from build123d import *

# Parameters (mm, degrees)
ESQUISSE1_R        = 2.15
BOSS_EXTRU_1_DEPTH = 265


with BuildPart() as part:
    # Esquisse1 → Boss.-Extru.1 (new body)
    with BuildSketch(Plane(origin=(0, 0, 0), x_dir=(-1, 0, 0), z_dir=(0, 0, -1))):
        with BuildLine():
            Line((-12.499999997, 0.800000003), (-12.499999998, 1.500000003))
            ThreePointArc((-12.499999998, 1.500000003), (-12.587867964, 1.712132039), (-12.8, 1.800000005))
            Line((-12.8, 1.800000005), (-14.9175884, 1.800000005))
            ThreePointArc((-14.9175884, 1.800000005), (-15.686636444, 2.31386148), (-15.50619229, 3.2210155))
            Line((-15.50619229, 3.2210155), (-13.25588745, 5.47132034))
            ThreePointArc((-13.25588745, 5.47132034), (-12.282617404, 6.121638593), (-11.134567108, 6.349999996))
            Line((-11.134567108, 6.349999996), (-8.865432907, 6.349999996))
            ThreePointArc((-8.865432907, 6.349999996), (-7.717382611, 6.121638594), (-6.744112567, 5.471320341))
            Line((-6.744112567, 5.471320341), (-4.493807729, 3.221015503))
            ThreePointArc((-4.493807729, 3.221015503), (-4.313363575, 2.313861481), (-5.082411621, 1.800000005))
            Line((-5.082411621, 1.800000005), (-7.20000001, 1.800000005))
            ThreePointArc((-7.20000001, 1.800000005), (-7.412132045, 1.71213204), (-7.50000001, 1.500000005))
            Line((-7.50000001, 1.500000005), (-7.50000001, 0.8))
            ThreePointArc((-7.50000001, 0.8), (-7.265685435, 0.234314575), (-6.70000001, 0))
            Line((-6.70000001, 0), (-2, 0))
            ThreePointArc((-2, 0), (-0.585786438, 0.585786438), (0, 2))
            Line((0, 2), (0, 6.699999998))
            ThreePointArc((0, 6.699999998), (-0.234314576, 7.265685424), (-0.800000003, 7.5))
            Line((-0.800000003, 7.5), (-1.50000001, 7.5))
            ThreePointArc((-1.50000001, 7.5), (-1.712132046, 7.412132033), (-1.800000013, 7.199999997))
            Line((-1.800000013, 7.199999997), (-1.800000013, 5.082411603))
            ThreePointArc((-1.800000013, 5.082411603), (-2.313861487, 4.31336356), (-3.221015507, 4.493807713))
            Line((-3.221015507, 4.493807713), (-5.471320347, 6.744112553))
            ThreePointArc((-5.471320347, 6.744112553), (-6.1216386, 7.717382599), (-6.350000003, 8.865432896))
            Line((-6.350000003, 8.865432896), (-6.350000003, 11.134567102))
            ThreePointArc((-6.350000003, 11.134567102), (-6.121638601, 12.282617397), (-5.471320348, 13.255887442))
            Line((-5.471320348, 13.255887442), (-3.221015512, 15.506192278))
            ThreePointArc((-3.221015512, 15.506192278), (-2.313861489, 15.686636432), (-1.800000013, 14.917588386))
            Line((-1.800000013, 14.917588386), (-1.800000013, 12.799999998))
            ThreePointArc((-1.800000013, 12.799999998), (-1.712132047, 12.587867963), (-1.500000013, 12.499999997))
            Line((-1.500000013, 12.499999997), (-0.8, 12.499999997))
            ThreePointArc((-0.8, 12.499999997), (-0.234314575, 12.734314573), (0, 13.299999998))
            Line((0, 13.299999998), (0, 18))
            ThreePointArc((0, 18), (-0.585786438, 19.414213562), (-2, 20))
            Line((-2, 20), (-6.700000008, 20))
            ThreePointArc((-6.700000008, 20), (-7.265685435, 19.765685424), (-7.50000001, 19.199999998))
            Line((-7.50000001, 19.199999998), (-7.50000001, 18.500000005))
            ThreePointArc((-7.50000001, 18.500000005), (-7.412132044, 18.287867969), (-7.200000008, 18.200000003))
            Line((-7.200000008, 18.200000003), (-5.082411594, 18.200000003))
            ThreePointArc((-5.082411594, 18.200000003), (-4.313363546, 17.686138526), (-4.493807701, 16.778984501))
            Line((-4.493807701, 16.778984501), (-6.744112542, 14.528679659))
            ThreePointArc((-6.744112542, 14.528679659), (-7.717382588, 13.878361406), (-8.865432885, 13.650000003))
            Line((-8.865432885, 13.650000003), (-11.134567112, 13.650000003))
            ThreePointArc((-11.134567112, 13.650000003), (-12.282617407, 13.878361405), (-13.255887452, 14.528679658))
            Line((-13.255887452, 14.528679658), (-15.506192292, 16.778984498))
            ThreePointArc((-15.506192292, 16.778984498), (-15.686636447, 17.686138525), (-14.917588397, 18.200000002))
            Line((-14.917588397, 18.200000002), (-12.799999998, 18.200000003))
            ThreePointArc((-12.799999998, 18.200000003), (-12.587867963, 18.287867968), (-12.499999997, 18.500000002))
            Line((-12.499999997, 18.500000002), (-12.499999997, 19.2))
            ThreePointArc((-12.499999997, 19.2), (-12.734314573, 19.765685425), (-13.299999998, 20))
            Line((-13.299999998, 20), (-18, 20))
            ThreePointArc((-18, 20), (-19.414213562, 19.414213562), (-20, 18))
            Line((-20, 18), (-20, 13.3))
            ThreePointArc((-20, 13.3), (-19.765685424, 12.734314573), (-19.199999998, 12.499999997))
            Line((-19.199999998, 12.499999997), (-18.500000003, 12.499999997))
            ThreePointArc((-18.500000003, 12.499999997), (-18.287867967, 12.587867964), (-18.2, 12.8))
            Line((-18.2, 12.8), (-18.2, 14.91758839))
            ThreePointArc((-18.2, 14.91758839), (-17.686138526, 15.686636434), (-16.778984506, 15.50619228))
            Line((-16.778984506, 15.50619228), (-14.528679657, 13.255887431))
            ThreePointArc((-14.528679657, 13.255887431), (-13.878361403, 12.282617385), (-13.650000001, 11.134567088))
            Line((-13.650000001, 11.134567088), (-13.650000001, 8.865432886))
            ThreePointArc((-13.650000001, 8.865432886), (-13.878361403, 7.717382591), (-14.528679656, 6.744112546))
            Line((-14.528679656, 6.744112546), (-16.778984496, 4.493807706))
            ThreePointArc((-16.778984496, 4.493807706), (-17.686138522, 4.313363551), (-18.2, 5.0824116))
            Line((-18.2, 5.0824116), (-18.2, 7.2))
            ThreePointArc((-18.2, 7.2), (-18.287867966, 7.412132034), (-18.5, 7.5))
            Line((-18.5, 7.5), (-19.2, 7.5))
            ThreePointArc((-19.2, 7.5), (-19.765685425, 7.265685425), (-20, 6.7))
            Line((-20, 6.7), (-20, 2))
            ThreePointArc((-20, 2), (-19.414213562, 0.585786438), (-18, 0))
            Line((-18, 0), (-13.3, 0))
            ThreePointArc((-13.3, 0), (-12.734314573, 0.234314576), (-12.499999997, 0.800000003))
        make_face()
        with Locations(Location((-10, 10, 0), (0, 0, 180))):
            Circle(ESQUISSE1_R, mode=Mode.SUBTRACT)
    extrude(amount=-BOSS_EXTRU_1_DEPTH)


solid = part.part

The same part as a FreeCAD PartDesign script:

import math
import FreeCAD as App
import Part
import Sketcher
from FreeCAD import Vector

doc = App.newDocument("Part")
body = doc.addObject("PartDesign::Body", "Body")

# Sketch on XY plane
sketch1 = body.newObject("Sketcher::SketchObject", "Sketch")
sketch1.AttachmentSupport = (doc.getObject("XY_Plane"), [""])
sketch1.MapMode = "FlatFace"
sketch1.addGeometry(Part.LineSegment(Vector(12.5, 0.8, 0), Vector(12.5, 1.5, 0)), False)
sketch1.addGeometry(Part.ArcOfCircle(Part.Circle(Vector(12.8, 1.5, 0), Vector(0, 0, 1), 0.3), math.radians(90), math.radians(180)), False)
sketch1.addGeometry(Part.LineSegment(Vector(12.8, 1.8, 0), Vector(14.92, 1.8, 0)), False)
sketch1.addGeometry(Part.ArcOfCircle(Part.Circle(Vector(14.92, 2.63, 0), Vector(0, 0, 1), 0.83), math.radians(-90), math.radians(45)), False)
sketch1.addGeometry(Part.LineSegment(Vector(15.51, 3.22, 0), Vector(13.26, 5.47, 0)), False)
sketch1.addGeometry(Part.ArcOfCircle(Part.Circle(Vector(11.13, 3.35, 0), Vector(0, 0, 1), 3), math.radians(45), math.radians(90)), False)
sketch1.addGeometry(Part.LineSegment(Vector(11.13, 6.35, 0), Vector(8.87, 6.35, 0)), False)
sketch1.addGeometry(Part.ArcOfCircle(Part.Circle(Vector(8.87, 3.35, 0), Vector(0, 0, 1), 3), math.radians(90), math.radians(135)), False)
sketch1.addGeometry(Part.LineSegment(Vector(6.74, 5.47, 0), Vector(4.49, 3.22, 0)), False)
sketch1.addGeometry(Part.ArcOfCircle(Part.Circle(Vector(5.08, 2.63, 0), Vector(0, 0, 1), 0.83), math.radians(135), math.radians(270)), False)
sketch1.addGeometry(Part.LineSegment(Vector(5.08, 1.8, 0), Vector(7.2, 1.8, 0)), False)
sketch1.addGeometry(Part.ArcOfCircle(Part.Circle(Vector(7.2, 1.5, 0), Vector(0, 0, 1), 0.3), math.radians(0), math.radians(90)), False)
sketch1.addGeometry(Part.LineSegment(Vector(7.5, 1.5, 0), Vector(7.5, 0.8, 0)), False)
sketch1.addGeometry(Part.ArcOfCircle(Part.Circle(Vector(6.7, 0.8, 0), Vector(0, 0, 1), 0.8), math.radians(-90), math.radians(0)), False)
sketch1.addGeometry(Part.LineSegment(Vector(6.7, 0, 0), Vector(2, 0, 0)), False)
sketch1.addGeometry(Part.ArcOfCircle(Part.Circle(Vector(2, 2, 0), Vector(0, 0, 1), 2), math.radians(-180), math.radians(-90)), False)
sketch1.addGeometry(Part.LineSegment(Vector(0, 2, 0), Vector(0, 6.7, 0)), False)
sketch1.addGeometry(Part.ArcOfCircle(Part.Circle(Vector(0.8, 6.7, 0), Vector(0, 0, 1), 0.8), math.radians(90), math.radians(180)), False)
sketch1.addGeometry(Part.LineSegment(Vector(0.8, 7.5, 0), Vector(1.5, 7.5, 0)), False)
sketch1.addGeometry(Part.ArcOfCircle(Part.Circle(Vector(1.5, 7.2, 0), Vector(0, 0, 1), 0.3), math.radians(0), math.radians(90)), False)
sketch1.addGeometry(Part.LineSegment(Vector(1.8, 7.2, 0), Vector(1.8, 5.08, 0)), False)
sketch1.addGeometry(Part.ArcOfCircle(Part.Circle(Vector(2.63, 5.08, 0), Vector(0, 0, 1), 0.83), math.radians(-180), math.radians(-45)), False)
sketch1.addGeometry(Part.LineSegment(Vector(3.22, 4.49, 0), Vector(5.47, 6.74, 0)), False)
sketch1.addGeometry(Part.ArcOfCircle(Part.Circle(Vector(3.35, 8.87, 0), Vector(0, 0, 1), 3), math.radians(-45), math.radians(0)), False)
sketch1.addGeometry(Part.LineSegment(Vector(6.35, 8.87, 0), Vector(6.35, 11.13, 0)), False)
sketch1.addGeometry(Part.ArcOfCircle(Part.Circle(Vector(3.35, 11.13, 0), Vector(0, 0, 1), 3), math.radians(0), math.radians(45)), False)
sketch1.addGeometry(Part.LineSegment(Vector(5.47, 13.26, 0), Vector(3.22, 15.51, 0)), False)
sketch1.addGeometry(Part.ArcOfCircle(Part.Circle(Vector(2.63, 14.92, 0), Vector(0, 0, 1), 0.83), math.radians(45), math.radians(180)), False)
sketch1.addGeometry(Part.LineSegment(Vector(1.8, 14.92, 0), Vector(1.8, 12.8, 0)), False)
sketch1.addGeometry(Part.ArcOfCircle(Part.Circle(Vector(1.5, 12.8, 0), Vector(0, 0, 1), 0.3), math.radians(-90), math.radians(0)), False)
sketch1.addGeometry(Part.LineSegment(Vector(1.5, 12.5, 0), Vector(0.8, 12.5, 0)), False)
sketch1.addGeometry(Part.ArcOfCircle(Part.Circle(Vector(0.8, 13.3, 0), Vector(0, 0, 1), 0.8), math.radians(-180), math.radians(-90)), False)
sketch1.addGeometry(Part.LineSegment(Vector(0, 13.3, 0), Vector(0, 18, 0)), False)
sketch1.addGeometry(Part.ArcOfCircle(Part.Circle(Vector(2, 18, 0), Vector(0, 0, 1), 2), math.radians(90), math.radians(180)), False)
sketch1.addGeometry(Part.LineSegment(Vector(2, 20, 0), Vector(6.7, 20, 0)), False)
sketch1.addGeometry(Part.ArcOfCircle(Part.Circle(Vector(6.7, 19.2, 0), Vector(0, 0, 1), 0.8), math.radians(0), math.radians(90)), False)
sketch1.addGeometry(Part.LineSegment(Vector(7.5, 19.2, 0), Vector(7.5, 18.5, 0)), False)
sketch1.addGeometry(Part.ArcOfCircle(Part.Circle(Vector(7.2, 18.5, 0), Vector(0, 0, 1), 0.3), math.radians(-90), math.radians(0)), False)
sketch1.addGeometry(Part.LineSegment(Vector(7.2, 18.2, 0), Vector(5.08, 18.2, 0)), False)
sketch1.addGeometry(Part.ArcOfCircle(Part.Circle(Vector(5.08, 17.37, 0), Vector(0, 0, 1), 0.83), math.radians(90), math.radians(225)), False)
sketch1.addGeometry(Part.LineSegment(Vector(4.49, 16.78, 0), Vector(6.74, 14.53, 0)), False)
sketch1.addGeometry(Part.ArcOfCircle(Part.Circle(Vector(8.87, 16.65, 0), Vector(0, 0, 1), 3), math.radians(-135), math.radians(-90)), False)
sketch1.addGeometry(Part.LineSegment(Vector(8.87, 13.65, 0), Vector(11.13, 13.65, 0)), False)
sketch1.addGeometry(Part.ArcOfCircle(Part.Circle(Vector(11.13, 16.65, 0), Vector(0, 0, 1), 3), math.radians(-90), math.radians(-45)), False)
sketch1.addGeometry(Part.LineSegment(Vector(13.26, 14.53, 0), Vector(15.51, 16.78, 0)), False)
sketch1.addGeometry(Part.ArcOfCircle(Part.Circle(Vector(14.92, 17.37, 0), Vector(0, 0, 1), 0.83), math.radians(-45), math.radians(90)), False)
sketch1.addGeometry(Part.LineSegment(Vector(14.92, 18.2, 0), Vector(12.8, 18.2, 0)), False)
sketch1.addGeometry(Part.ArcOfCircle(Part.Circle(Vector(12.8, 18.5, 0), Vector(0, 0, 1), 0.3), math.radians(-180), math.radians(-90)), False)
sketch1.addGeometry(Part.LineSegment(Vector(12.5, 18.5, 0), Vector(12.5, 19.2, 0)), False)
sketch1.addGeometry(Part.ArcOfCircle(Part.Circle(Vector(13.3, 19.2, 0), Vector(0, 0, 1), 0.8), math.radians(90), math.radians(180)), False)
sketch1.addGeometry(Part.LineSegment(Vector(13.3, 20, 0), Vector(18, 20, 0)), False)
sketch1.addGeometry(Part.ArcOfCircle(Part.Circle(Vector(18, 18, 0), Vector(0, 0, 1), 2), math.radians(0), math.radians(90)), False)
sketch1.addGeometry(Part.LineSegment(Vector(20, 18, 0), Vector(20, 13.3, 0)), False)
sketch1.addGeometry(Part.ArcOfCircle(Part.Circle(Vector(19.2, 13.3, 0), Vector(0, 0, 1), 0.8), math.radians(-90), math.radians(0)), False)
sketch1.addGeometry(Part.LineSegment(Vector(19.2, 12.5, 0), Vector(18.5, 12.5, 0)), False)
sketch1.addGeometry(Part.ArcOfCircle(Part.Circle(Vector(18.5, 12.8, 0), Vector(0, 0, 1), 0.3), math.radians(-180), math.radians(-90)), False)
sketch1.addGeometry(Part.LineSegment(Vector(18.2, 12.8, 0), Vector(18.2, 14.92, 0)), False)
sketch1.addGeometry(Part.ArcOfCircle(Part.Circle(Vector(17.37, 14.92, 0), Vector(0, 0, 1), 0.83), math.radians(0), math.radians(135)), False)
sketch1.addGeometry(Part.LineSegment(Vector(16.78, 15.51, 0), Vector(14.53, 13.26, 0)), False)
sketch1.addGeometry(Part.ArcOfCircle(Part.Circle(Vector(16.65, 11.13, 0), Vector(0, 0, 1), 3), math.radians(135), math.radians(180)), False)
sketch1.addGeometry(Part.LineSegment(Vector(13.65, 11.13, 0), Vector(13.65, 8.87, 0)), False)
sketch1.addGeometry(Part.ArcOfCircle(Part.Circle(Vector(16.65, 8.87, 0), Vector(0, 0, 1), 3), math.radians(180), math.radians(225)), False)
sketch1.addGeometry(Part.LineSegment(Vector(14.53, 6.74, 0), Vector(16.78, 4.49, 0)), False)
sketch1.addGeometry(Part.ArcOfCircle(Part.Circle(Vector(17.37, 5.08, 0), Vector(0, 0, 1), 0.83), math.radians(-135), math.radians(0)), False)
sketch1.addGeometry(Part.LineSegment(Vector(18.2, 5.08, 0), Vector(18.2, 7.2, 0)), False)
sketch1.addGeometry(Part.ArcOfCircle(Part.Circle(Vector(18.5, 7.2, 0), Vector(0, 0, 1), 0.3), math.radians(90), math.radians(180)), False)
sketch1.addGeometry(Part.LineSegment(Vector(18.5, 7.5, 0), Vector(19.2, 7.5, 0)), False)
sketch1.addGeometry(Part.ArcOfCircle(Part.Circle(Vector(19.2, 6.7, 0), Vector(0, 0, 1), 0.8), math.radians(0), math.radians(90)), False)
sketch1.addGeometry(Part.LineSegment(Vector(20, 6.7, 0), Vector(20, 2, 0)), False)
sketch1.addGeometry(Part.ArcOfCircle(Part.Circle(Vector(18, 2, 0), Vector(0, 0, 1), 2), math.radians(-90), math.radians(0)), False)
sketch1.addGeometry(Part.LineSegment(Vector(18, 0, 0), Vector(13.3, 0, 0)), False)
sketch1.addGeometry(Part.ArcOfCircle(Part.Circle(Vector(13.3, 0.8, 0), Vector(0, 0, 1), 0.8), math.radians(180), math.radians(270)), False)
sketch1.addGeometry(Part.Circle(Vector(10, 10, 0), Vector(0, 0, 1), 2.15), False)
sketch1.addConstraint(Sketcher.Constraint("Tangent", 0, 2, 1, 2))
sketch1.addConstraint(Sketcher.Constraint("Tangent", 1, 1, 2, 1))
sketch1.addConstraint(Sketcher.Constraint("Tangent", 2, 2, 3, 1))
sketch1.addConstraint(Sketcher.Constraint("Tangent", 3, 2, 4, 1))
sketch1.addConstraint(Sketcher.Constraint("Tangent", 4, 2, 5, 1))
sketch1.addConstraint(Sketcher.Constraint("Tangent", 5, 2, 6, 1))
sketch1.addConstraint(Sketcher.Constraint("Tangent", 6, 2, 7, 1))
sketch1.addConstraint(Sketcher.Constraint("Tangent", 7, 2, 8, 1))
sketch1.addConstraint(Sketcher.Constraint("Tangent", 8, 2, 9, 1))
sketch1.addConstraint(Sketcher.Constraint("Tangent", 9, 2, 10, 1))
sketch1.addConstraint(Sketcher.Constraint("Tangent", 10, 2, 11, 2))
sketch1.addConstraint(Sketcher.Constraint("Tangent", 11, 1, 12, 1))
sketch1.addConstraint(Sketcher.Constraint("Tangent", 12, 2, 13, 2))
sketch1.addConstraint(Sketcher.Constraint("Tangent", 13, 1, 14, 1))
sketch1.addConstraint(Sketcher.Constraint("Tangent", 14, 2, 15, 2))
sketch1.addConstraint(Sketcher.Constraint("Tangent", 15, 1, 16, 1))
sketch1.addConstraint(Sketcher.Constraint("Tangent", 16, 2, 17, 2))
sketch1.addConstraint(Sketcher.Constraint("Tangent", 17, 1, 18, 1))
sketch1.addConstraint(Sketcher.Constraint("Tangent", 18, 2, 19, 2))
sketch1.addConstraint(Sketcher.Constraint("Tangent", 19, 1, 20, 1))
sketch1.addConstraint(Sketcher.Constraint("Tangent", 20, 2, 21, 1))
sketch1.addConstraint(Sketcher.Constraint("Tangent", 21, 2, 22, 1))
sketch1.addConstraint(Sketcher.Constraint("Tangent", 22, 2, 23, 1))
sketch1.addConstraint(Sketcher.Constraint("Tangent", 23, 2, 24, 1))
sketch1.addConstraint(Sketcher.Constraint("Tangent", 24, 2, 25, 1))
sketch1.addConstraint(Sketcher.Constraint("Tangent", 25, 2, 26, 1))
sketch1.addConstraint(Sketcher.Constraint("Tangent", 26, 2, 27, 1))
sketch1.addConstraint(Sketcher.Constraint("Tangent", 27, 2, 28, 1))
sketch1.addConstraint(Sketcher.Constraint("Tangent", 28, 2, 29, 2))
sketch1.addConstraint(Sketcher.Constraint("Tangent", 29, 1, 30, 1))
sketch1.addConstraint(Sketcher.Constraint("Tangent", 30, 2, 31, 2))
sketch1.addConstraint(Sketcher.Constraint("Tangent", 31, 1, 32, 1))
sketch1.addConstraint(Sketcher.Constraint("Tangent", 32, 2, 33, 2))
sketch1.addConstraint(Sketcher.Constraint("Tangent", 33, 1, 34, 1))
sketch1.addConstraint(Sketcher.Constraint("Tangent", 34, 2, 35, 2))
sketch1.addConstraint(Sketcher.Constraint("Tangent", 35, 1, 36, 1))
sketch1.addConstraint(Sketcher.Constraint("Tangent", 36, 2, 37, 2))
sketch1.addConstraint(Sketcher.Constraint("Tangent", 37, 1, 38, 1))
sketch1.addConstraint(Sketcher.Constraint("Tangent", 38, 2, 39, 1))
sketch1.addConstraint(Sketcher.Constraint("Tangent", 39, 2, 40, 1))
sketch1.addConstraint(Sketcher.Constraint("Tangent", 40, 2, 41, 1))
sketch1.addConstraint(Sketcher.Constraint("Tangent", 41, 2, 42, 1))
sketch1.addConstraint(Sketcher.Constraint("Tangent", 42, 2, 43, 1))
sketch1.addConstraint(Sketcher.Constraint("Tangent", 43, 2, 44, 1))
sketch1.addConstraint(Sketcher.Constraint("Tangent", 44, 2, 45, 1))
sketch1.addConstraint(Sketcher.Constraint("Tangent", 45, 2, 46, 1))
sketch1.addConstraint(Sketcher.Constraint("Tangent", 46, 2, 47, 2))
sketch1.addConstraint(Sketcher.Constraint("Tangent", 47, 1, 48, 1))
sketch1.addConstraint(Sketcher.Constraint("Tangent", 48, 2, 49, 2))
sketch1.addConstraint(Sketcher.Constraint("Tangent", 49, 1, 50, 1))
sketch1.addConstraint(Sketcher.Constraint("Tangent", 50, 2, 51, 2))
sketch1.addConstraint(Sketcher.Constraint("Tangent", 51, 1, 52, 1))
sketch1.addConstraint(Sketcher.Constraint("Tangent", 52, 2, 53, 2))
sketch1.addConstraint(Sketcher.Constraint("Tangent", 53, 1, 54, 1))
sketch1.addConstraint(Sketcher.Constraint("Tangent", 54, 2, 55, 2))
sketch1.addConstraint(Sketcher.Constraint("Tangent", 55, 1, 56, 1))
sketch1.addConstraint(Sketcher.Constraint("Tangent", 56, 2, 57, 1))
sketch1.addConstraint(Sketcher.Constraint("Tangent", 57, 2, 58, 1))
sketch1.addConstraint(Sketcher.Constraint("Tangent", 58, 2, 59, 1))
sketch1.addConstraint(Sketcher.Constraint("Tangent", 59, 2, 60, 1))
sketch1.addConstraint(Sketcher.Constraint("Tangent", 60, 2, 61, 1))
sketch1.addConstraint(Sketcher.Constraint("Tangent", 61, 2, 62, 1))
sketch1.addConstraint(Sketcher.Constraint("Tangent", 62, 2, 63, 1))
sketch1.addConstraint(Sketcher.Constraint("Tangent", 63, 2, 64, 1))
sketch1.addConstraint(Sketcher.Constraint("Tangent", 64, 2, 65, 2))
sketch1.addConstraint(Sketcher.Constraint("Tangent", 65, 1, 66, 1))
sketch1.addConstraint(Sketcher.Constraint("Tangent", 66, 2, 67, 2))
sketch1.addConstraint(Sketcher.Constraint("Tangent", 67, 1, 68, 1))
sketch1.addConstraint(Sketcher.Constraint("Tangent", 68, 2, 69, 2))
sketch1.addConstraint(Sketcher.Constraint("Tangent", 69, 1, 70, 1))
sketch1.addConstraint(Sketcher.Constraint("Tangent", 70, 2, 71, 2))
sketch1.addConstraint(Sketcher.Constraint("Tangent", 71, 1, 0, 1))
sketch1.addConstraint(Sketcher.Constraint("Vertical", 0))
sketch1.addConstraint(Sketcher.Constraint("Horizontal", 2))
sketch1.addConstraint(Sketcher.Constraint("Horizontal", 6))
sketch1.addConstraint(Sketcher.Constraint("Horizontal", 10))
sketch1.addConstraint(Sketcher.Constraint("Vertical", 12))
sketch1.addConstraint(Sketcher.Constraint("Horizontal", 14))
sketch1.addConstraint(Sketcher.Constraint("Vertical", 16))
sketch1.addConstraint(Sketcher.Constraint("Horizontal", 18))
sketch1.addConstraint(Sketcher.Constraint("Vertical", 20))
sketch1.addConstraint(Sketcher.Constraint("Vertical", 24))
sketch1.addConstraint(Sketcher.Constraint("Vertical", 28))
sketch1.addConstraint(Sketcher.Constraint("Horizontal", 30))
sketch1.addConstraint(Sketcher.Constraint("Vertical", 32))
sketch1.addConstraint(Sketcher.Constraint("Horizontal", 34))
sketch1.addConstraint(Sketcher.Constraint("Vertical", 36))
sketch1.addConstraint(Sketcher.Constraint("Horizontal", 38))
sketch1.addConstraint(Sketcher.Constraint("Horizontal", 42))
sketch1.addConstraint(Sketcher.Constraint("Horizontal", 46))
sketch1.addConstraint(Sketcher.Constraint("Vertical", 48))
sketch1.addConstraint(Sketcher.Constraint("Horizontal", 50))
sketch1.addConstraint(Sketcher.Constraint("Vertical", 52))
sketch1.addConstraint(Sketcher.Constraint("Horizontal", 54))
sketch1.addConstraint(Sketcher.Constraint("Vertical", 56))
sketch1.addConstraint(Sketcher.Constraint("Vertical", 60))
sketch1.addConstraint(Sketcher.Constraint("Vertical", 64))
sketch1.addConstraint(Sketcher.Constraint("Horizontal", 66))
sketch1.addConstraint(Sketcher.Constraint("Vertical", 68))
sketch1.addConstraint(Sketcher.Constraint("Horizontal", 70))
sketch1.addConstraint(Sketcher.Constraint("Equal", 5, 7))
sketch1.addConstraint(Sketcher.Constraint("Equal", 3, 9))
sketch1.addConstraint(Sketcher.Constraint("Equal", 1, 11))
sketch1.addConstraint(Sketcher.Constraint("Equal", 13, 17))
sketch1.addConstraint(Sketcher.Constraint("Equal", 11, 19))
sketch1.addConstraint(Sketcher.Constraint("Equal", 9, 21))
sketch1.addConstraint(Sketcher.Constraint("Equal", 7, 23))
sketch1.addConstraint(Sketcher.Constraint("Equal", 23, 25))
sketch1.addConstraint(Sketcher.Constraint("Equal", 21, 27))
sketch1.addConstraint(Sketcher.Constraint("Equal", 19, 29))
sketch1.addConstraint(Sketcher.Constraint("Equal", 17, 31))
sketch1.addConstraint(Sketcher.Constraint("Equal", 15, 33))
sketch1.addConstraint(Sketcher.Constraint("Equal", 31, 35))
sketch1.addConstraint(Sketcher.Constraint("Equal", 29, 37))
sketch1.addConstraint(Sketcher.Constraint("Equal", 27, 39))
sketch1.addConstraint(Sketcher.Constraint("Equal", 25, 41))
sketch1.addConstraint(Sketcher.Constraint("Equal", 41, 43))
sketch1.addConstraint(Sketcher.Constraint("Equal", 39, 45))
sketch1.addConstraint(Sketcher.Constraint("Equal", 37, 47))
sketch1.addConstraint(Sketcher.Constraint("Equal", 35, 49))
sketch1.addConstraint(Sketcher.Constraint("Equal", 33, 51))
sketch1.addConstraint(Sketcher.Constraint("Equal", 49, 53))
sketch1.addConstraint(Sketcher.Constraint("Equal", 47, 55))
sketch1.addConstraint(Sketcher.Constraint("Equal", 45, 57))
sketch1.addConstraint(Sketcher.Constraint("Equal", 43, 59))
sketch1.addConstraint(Sketcher.Constraint("Equal", 59, 61))
sketch1.addConstraint(Sketcher.Constraint("Equal", 57, 63))
sketch1.addConstraint(Sketcher.Constraint("Equal", 55, 65))
sketch1.addConstraint(Sketcher.Constraint("Equal", 53, 67))
sketch1.addConstraint(Sketcher.Constraint("Equal", 51, 69))
sketch1.addConstraint(Sketcher.Constraint("Equal", 67, 71))
sketch1.addConstraint(Sketcher.Constraint("PointOnObject", 13, 1, -1))
sketch1.addConstraint(Sketcher.Constraint("PointOnObject", 15, 1, -2))
sketch1.addConstraint(Sketcher.Constraint("PointOnObject", 31, 1, -2))
sketch1.addConstraint(Sketcher.Constraint("PointOnObject", 69, 1, -1))
sketch1.addConstraint(Sketcher.Constraint("Perpendicular", 4, 8))
sketch1.addConstraint(Sketcher.Constraint("Parallel", 8, 22))
sketch1.addConstraint(Sketcher.Constraint("Perpendicular", 22, 26))
sketch1.addConstraint(Sketcher.Constraint("Parallel", 26, 40))
sketch1.addConstraint(Sketcher.Constraint("Perpendicular", 40, 44))
sketch1.addConstraint(Sketcher.Constraint("Parallel", 44, 58))
sketch1.addConstraint(Sketcher.Constraint("Perpendicular", 58, 62))
sketch1.addConstraint(Sketcher.Constraint("Horizontal", 3, 3, 9, 3))
sketch1.addConstraint(Sketcher.Constraint("Horizontal", 39, 3, 45, 3))
sketch1.addConstraint(Sketcher.Constraint("Horizontal", 35, 3, 49, 3))
sketch1.addConstraint(Sketcher.Constraint("Horizontal", 31, 3, 53, 3))
sketch1.addConstraint(Sketcher.Constraint("Horizontal", 27, 3, 57, 3))
sketch1.addConstraint(Sketcher.Constraint("Horizontal", 25, 3, 59, 3))
sketch1.addConstraint(Sketcher.Constraint("Horizontal", 23, 3, 61, 3))
sketch1.addConstraint(Sketcher.Constraint("Horizontal", 21, 3, 63, 3))
sketch1.addConstraint(Sketcher.Constraint("Horizontal", 19, 3, 65, 3))
sketch1.addConstraint(Sketcher.Constraint("Horizontal", 4, 2, 7, 2))
sketch1.addConstraint(Sketcher.Constraint("Vertical", 21, 3, 27, 3))
sketch1.addConstraint(Sketcher.Constraint("Vertical", 13, 3, 35, 3))
sketch1.addConstraint(Sketcher.Constraint("Vertical", 9, 3, 39, 3))
sketch1.addConstraint(Sketcher.Constraint("Vertical", 7, 3, 41, 3))
sketch1.addConstraint(Sketcher.Constraint("Vertical", 5, 3, 43, 3))
sketch1.addConstraint(Sketcher.Constraint("Vertical", 1, 3, 47, 3))
sketch1.addConstraint(Sketcher.Constraint("Vertical", 53, 3, 67, 3))
sketch1.addConstraint(Sketcher.Constraint("Equal", 2, 10))
sketch1.addConstraint(Sketcher.Constraint("Equal", 34, 50))
sketch1.addConstraint(Sketcher.Constraint("Equal", 30, 54))
sketch1.addConstraint(Sketcher.Constraint("Equal", 66, 0))
sketch1.addConstraint(Sketcher.Constraint("Equal", 70, 16))
sketch1.addConstraint(Sketcher.Constraint("Equal", 46, 20))
sketch1.addConstraint(Sketcher.Constraint("Equal", 42, 24))
sketch1.addConstraint(Sketcher.Constraint("Equal", 20, 28))
sketch1.addConstraint(Sketcher.Constraint("Equal", 16, 32))
sketch1.addConstraint(Sketcher.Constraint("Equal", 12, 36))
sketch1.addConstraint(Sketcher.Constraint("Equal", 8, 22))
sketch1.addConstraint(Sketcher.Constraint("Radius", 5, 3.0))
sketch1.addConstraint(Sketcher.Constraint("Radius", 15, 2.0))
sketch1.addConstraint(Sketcher.Constraint("Diameter", 72, 4.3))
sketch1.addConstraint(Sketcher.Constraint("Radius", 1, 0.3))
sketch1.addConstraint(Sketcher.Constraint("Radius", 13, 0.8))
sketch1.addConstraint(Sketcher.Constraint("DistanceX", 14, 2, 14, 1, 4.7))
sketch1.addConstraint(Sketcher.Constraint("DistanceX", 18, 1, 18, 2, 0.7))
sketch1.addConstraint(Sketcher.Constraint("DistanceY", -1, 1, 33, 3, 18.0))
sketch1.addConstraint(Sketcher.Constraint("DistanceX", -1, 1, 72, 3, 10.0))
sketch1.addConstraint(Sketcher.Constraint("DistanceY", -1, 1, 72, 3, 10.0))
sketch1.addConstraint(Sketcher.Constraint("DistanceY", -1, 1, 5, 3, 3.35))
sketch1.addConstraint(Sketcher.Constraint("Radius", 3, 0.832412))
sketch1.addConstraint(Sketcher.Constraint("DistanceX", 2, 1, 2, 2, 2.117588))
pad1 = body.newObject("PartDesign::Pad", "Pad")
pad1.Profile = sketch1
pad1.Length = 265

doc.recompute()
